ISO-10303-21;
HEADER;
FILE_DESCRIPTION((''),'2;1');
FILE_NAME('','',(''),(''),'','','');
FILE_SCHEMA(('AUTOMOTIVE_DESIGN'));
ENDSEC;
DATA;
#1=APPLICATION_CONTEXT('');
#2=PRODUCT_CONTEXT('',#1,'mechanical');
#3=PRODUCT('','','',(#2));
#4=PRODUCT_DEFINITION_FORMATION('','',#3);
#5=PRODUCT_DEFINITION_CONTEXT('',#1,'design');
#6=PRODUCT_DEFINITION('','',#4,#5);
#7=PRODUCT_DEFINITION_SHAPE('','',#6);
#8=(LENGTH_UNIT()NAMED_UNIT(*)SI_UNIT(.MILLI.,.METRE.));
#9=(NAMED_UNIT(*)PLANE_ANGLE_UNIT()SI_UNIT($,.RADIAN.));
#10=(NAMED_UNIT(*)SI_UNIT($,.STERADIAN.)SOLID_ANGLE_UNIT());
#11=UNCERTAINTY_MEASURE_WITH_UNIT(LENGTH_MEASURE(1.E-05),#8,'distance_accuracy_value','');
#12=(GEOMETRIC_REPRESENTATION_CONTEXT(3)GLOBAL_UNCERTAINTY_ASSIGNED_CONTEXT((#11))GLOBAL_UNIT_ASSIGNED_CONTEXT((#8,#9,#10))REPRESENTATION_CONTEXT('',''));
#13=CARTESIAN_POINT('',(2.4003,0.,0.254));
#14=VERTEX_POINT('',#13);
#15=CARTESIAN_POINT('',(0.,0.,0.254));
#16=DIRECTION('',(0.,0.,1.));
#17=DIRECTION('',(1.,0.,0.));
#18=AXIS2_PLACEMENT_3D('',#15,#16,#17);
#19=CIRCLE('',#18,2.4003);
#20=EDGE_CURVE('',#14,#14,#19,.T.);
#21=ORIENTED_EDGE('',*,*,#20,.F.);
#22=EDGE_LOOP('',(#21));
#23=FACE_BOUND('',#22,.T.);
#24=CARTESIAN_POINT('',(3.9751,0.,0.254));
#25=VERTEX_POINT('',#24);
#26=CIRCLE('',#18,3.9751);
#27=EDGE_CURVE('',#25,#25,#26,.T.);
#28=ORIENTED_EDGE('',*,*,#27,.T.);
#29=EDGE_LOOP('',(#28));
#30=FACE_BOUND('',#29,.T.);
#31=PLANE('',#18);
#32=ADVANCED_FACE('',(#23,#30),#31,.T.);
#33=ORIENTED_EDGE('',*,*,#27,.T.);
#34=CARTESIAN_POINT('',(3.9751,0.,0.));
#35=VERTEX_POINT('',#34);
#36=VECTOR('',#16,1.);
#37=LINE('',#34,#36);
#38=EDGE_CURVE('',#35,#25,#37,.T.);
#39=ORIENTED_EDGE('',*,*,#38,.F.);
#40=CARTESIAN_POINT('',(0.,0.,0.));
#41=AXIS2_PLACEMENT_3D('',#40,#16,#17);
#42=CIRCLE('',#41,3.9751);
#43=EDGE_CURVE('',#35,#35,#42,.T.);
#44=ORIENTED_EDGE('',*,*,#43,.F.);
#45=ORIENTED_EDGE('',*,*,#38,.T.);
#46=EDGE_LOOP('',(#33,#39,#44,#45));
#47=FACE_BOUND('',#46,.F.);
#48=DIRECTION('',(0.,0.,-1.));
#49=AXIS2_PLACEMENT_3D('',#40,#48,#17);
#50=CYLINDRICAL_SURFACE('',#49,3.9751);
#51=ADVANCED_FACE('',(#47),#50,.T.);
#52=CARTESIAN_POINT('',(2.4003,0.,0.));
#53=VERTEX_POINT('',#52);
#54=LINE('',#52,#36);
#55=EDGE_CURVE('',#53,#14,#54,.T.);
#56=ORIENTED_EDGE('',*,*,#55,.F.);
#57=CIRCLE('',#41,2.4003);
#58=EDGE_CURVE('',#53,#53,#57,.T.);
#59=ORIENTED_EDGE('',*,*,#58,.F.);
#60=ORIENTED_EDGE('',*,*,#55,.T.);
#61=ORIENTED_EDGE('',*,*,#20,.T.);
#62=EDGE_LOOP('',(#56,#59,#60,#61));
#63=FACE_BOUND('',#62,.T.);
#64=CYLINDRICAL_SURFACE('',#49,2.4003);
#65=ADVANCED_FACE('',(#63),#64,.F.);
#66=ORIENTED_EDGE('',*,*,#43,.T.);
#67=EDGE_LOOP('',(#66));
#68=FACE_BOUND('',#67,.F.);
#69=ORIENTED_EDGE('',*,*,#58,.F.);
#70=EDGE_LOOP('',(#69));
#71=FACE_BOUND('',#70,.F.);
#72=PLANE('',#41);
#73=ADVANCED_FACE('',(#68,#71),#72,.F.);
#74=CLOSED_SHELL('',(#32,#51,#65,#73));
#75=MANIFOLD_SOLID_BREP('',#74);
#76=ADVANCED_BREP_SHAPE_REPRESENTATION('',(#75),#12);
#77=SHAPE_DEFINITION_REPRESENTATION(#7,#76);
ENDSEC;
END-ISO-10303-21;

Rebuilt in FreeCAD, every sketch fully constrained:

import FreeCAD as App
import Part
import Sketcher

V = App.Vector
Q = App.Units.Quantity

doc = App.newDocument("Part")
body = doc.addObject("PartDesign::Body", "Body")

# Sketch on XY plane
sketch1 = body.newObject("Sketcher::SketchObject", "Sketch")
sketch1.AttachmentSupport = (doc.getObject("XY_Plane"), [""])
sketch1.MapMode = "FlatFace"
sketch1.addGeometry(Part.Circle(V(0, 0, 0), V(0, 0, 1), 3.9751), False)
sketch1.addGeometry(Part.Circle(V(0, 0, 0), V(0, 0, 1), 2.4003), False)
sketch1.addConstraint(Sketcher.Constraint("Coincident", 0, 3, -1, 1))
sketch1.addConstraint(Sketcher.Constraint("Coincident", 1, 3, -1, 1))
sketch1.addConstraint(Sketcher.Constraint("Diameter", 0, Q("0.313 in")))
sketch1.addConstraint(Sketcher.Constraint("Diameter", 1, Q("0.189 in")))
pad1 = body.newObject("PartDesign::Pad", "Pad")
pad1.Profile = sketch1
pad1.Length = Q("0.01 in")

doc.recompute()
